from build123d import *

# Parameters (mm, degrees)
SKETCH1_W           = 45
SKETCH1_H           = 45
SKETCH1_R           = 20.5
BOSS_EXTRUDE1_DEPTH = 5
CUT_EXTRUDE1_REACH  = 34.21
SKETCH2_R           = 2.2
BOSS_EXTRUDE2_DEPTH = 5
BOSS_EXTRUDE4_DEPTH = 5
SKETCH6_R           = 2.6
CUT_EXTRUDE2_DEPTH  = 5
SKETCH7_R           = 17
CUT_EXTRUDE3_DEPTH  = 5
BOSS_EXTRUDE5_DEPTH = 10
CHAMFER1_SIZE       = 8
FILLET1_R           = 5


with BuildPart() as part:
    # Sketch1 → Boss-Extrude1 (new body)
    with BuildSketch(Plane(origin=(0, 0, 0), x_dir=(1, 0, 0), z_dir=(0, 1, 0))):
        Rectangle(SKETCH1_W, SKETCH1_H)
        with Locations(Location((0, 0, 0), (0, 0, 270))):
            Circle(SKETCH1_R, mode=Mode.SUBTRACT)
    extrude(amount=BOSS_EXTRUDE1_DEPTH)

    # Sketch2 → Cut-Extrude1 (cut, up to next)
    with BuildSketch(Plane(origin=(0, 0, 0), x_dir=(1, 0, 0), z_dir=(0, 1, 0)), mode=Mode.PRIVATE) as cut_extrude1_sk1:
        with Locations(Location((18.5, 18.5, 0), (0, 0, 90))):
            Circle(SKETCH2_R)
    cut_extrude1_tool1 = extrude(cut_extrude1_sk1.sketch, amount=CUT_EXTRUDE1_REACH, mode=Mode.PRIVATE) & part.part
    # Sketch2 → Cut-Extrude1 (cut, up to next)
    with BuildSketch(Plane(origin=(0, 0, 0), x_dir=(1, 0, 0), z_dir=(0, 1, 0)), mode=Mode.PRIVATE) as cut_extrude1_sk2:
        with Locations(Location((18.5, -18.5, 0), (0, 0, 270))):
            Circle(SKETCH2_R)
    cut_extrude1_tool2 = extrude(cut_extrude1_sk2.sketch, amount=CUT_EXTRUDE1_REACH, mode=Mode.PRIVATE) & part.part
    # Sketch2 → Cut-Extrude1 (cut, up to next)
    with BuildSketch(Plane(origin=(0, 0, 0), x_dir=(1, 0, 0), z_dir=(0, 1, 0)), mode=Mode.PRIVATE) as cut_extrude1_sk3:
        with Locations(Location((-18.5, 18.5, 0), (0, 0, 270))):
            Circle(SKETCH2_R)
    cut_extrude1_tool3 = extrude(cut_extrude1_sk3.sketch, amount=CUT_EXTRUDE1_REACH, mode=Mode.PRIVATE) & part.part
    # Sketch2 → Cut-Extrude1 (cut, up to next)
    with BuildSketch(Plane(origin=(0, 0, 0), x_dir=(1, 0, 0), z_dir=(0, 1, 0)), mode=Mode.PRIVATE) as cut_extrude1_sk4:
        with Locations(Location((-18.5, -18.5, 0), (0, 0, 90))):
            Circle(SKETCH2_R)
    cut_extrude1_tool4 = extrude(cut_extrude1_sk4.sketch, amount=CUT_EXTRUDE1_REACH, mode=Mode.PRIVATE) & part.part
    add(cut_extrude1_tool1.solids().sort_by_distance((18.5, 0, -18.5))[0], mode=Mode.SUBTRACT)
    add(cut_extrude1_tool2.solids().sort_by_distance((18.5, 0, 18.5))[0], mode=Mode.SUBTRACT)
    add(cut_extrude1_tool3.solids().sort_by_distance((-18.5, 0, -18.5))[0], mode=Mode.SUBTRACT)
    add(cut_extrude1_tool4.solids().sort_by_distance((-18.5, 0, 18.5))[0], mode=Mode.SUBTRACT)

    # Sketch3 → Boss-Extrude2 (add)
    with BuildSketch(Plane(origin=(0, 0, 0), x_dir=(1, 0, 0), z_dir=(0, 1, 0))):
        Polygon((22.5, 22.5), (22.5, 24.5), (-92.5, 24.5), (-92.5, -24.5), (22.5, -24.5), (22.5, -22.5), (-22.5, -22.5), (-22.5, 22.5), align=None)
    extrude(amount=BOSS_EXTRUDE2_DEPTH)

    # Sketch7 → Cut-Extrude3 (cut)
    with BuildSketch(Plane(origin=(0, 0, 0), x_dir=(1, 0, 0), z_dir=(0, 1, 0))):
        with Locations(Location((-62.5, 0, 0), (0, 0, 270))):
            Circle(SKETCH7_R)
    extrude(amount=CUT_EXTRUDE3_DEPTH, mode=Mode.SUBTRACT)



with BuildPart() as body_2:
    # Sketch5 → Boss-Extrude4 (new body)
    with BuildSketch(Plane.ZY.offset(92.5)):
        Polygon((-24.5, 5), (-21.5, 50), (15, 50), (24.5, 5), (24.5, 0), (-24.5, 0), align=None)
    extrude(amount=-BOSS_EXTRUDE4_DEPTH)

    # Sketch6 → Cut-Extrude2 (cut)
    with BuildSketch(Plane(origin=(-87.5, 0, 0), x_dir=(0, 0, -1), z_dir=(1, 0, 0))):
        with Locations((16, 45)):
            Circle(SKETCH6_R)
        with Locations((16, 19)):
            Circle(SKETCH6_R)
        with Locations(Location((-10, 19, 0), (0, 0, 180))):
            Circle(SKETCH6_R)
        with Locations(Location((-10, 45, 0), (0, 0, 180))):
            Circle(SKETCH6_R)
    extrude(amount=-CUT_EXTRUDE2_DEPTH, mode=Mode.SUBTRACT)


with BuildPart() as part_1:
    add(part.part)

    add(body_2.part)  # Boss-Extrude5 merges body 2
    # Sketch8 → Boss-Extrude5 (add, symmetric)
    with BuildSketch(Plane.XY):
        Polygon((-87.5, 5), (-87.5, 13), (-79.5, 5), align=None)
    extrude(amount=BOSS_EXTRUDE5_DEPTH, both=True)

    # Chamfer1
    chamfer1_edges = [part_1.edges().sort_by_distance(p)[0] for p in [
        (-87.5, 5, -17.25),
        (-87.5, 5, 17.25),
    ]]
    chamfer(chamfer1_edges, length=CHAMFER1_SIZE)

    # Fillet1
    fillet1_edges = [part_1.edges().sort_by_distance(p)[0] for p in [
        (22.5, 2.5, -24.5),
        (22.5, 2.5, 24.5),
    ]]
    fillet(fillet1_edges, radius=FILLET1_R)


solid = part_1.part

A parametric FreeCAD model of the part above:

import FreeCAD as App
import Part
import Sketcher

V = App.Vector
Q = App.Units.Quantity


def edges_at(feature, points):
    """Names of the edges that pass closest to the given points."""
    edges = feature.Shape.Edges
    near = lambda p: min(range(len(edges)), key=lambda i: edges[i].distToShape(Part.Vertex(*p))[0])
    return sorted({f"Edge{near(p) + 1}" for p in points})


def add_polygon(sketch, points):
    """Adds a closed chain of lines whose ends are joined by coincident constraints."""
    first, n = sketch.GeometryCount, len(points)
    for a, b in zip(points, points[1:] + points[:1]):
        sketch.addGeometry(Part.LineSegment(App.Vector(*a, 0), App.Vector(*b, 0)), False)
    for i in range(n):
        sketch.addConstraint(Sketcher.Constraint("Coincident", first + i, 2, first + (i + 1) % n, 1))

doc = App.newDocument("Part")
body = doc.addObject("PartDesign::Body", "Body")

# Sketch on XZ plane
sketch1 = body.newObject("Sketcher::SketchObject", "Sketch")
sketch1.AttachmentSupport = (doc.getObject("XZ_Plane"), [""])
sketch1.MapMode = "FlatFace"
add_polygon(sketch1, [(-22, -22), (-22, 22), (22, 22), (22, -22)])  # lines 0-3
sketch1.addGeometry(Part.Circle(V(0, 0, 0), V(0, 0, 1), 20), False)  # 4
sketch1.addConstraint([
    Sketcher.Constraint("Vertical", 0),
    Sketcher.Constraint("Horizontal", 1),
    Sketcher.Constraint("Vertical", 2),
    Sketcher.Constraint("Horizontal", 3),
    Sketcher.Constraint("Coincident", 4, 3, -1, 1),
    Sketcher.Constraint("Symmetric", 0, 2, 2, 2, -1, 1),
    Sketcher.Constraint("Equal", 3, 0),
    Sketcher.Constraint("Diameter", 4, Q("41 mm")),
    Sketcher.Constraint("DistanceX", 1, 1, 1, 2, Q("45 mm")),
])
pad1 = body.newObject("PartDesign::Pad", "Pad")
pad1.Profile = sketch1
pad1.Length = 5
pad1.Reversed = True

# Sketch on XZ plane
sketch2 = body.newObject("Sketcher::SketchObject", "Sketch001")
sketch2.AttachmentSupport = (doc.getObject("XZ_Plane"), [""])
sketch2.MapMode = "FlatFace"
sketch2.addGeometry(Part.Circle(V(18.5, -18.5, 0), V(0, 0, 1), 2.2), False)
sketch2.addConstraint([
    Sketcher.Constraint("Diameter", 0, Q("4.4 mm")),
    Sketcher.Constraint("DistanceX", -1, 1, 0, 3, Q("18.5 mm")),
    Sketcher.Constraint("DistanceY", 0, 3, -1, 1, Q("18.5 mm")),
])
pocket1 = body.newObject("PartDesign::Pocket", "Pocket")
pocket1.Profile = sketch2
pocket1.Type = "UpToFirst"

# Sketch on XZ plane
sketch3 = body.newObject("Sketcher::SketchObject", "Sketch002")
sketch3.AttachmentSupport = (doc.getObject("XZ_Plane"), [""])
sketch3.MapMode = "FlatFace"
sketch3.addGeometry(Part.Circle(V(18.5, 18.5, 0), V(0, 0, 1), 2.2), False)
sketch3.addConstraint([
    Sketcher.Constraint("Diameter", 0, Q("4.4 mm")),
    Sketcher.Constraint("DistanceX", -1, 1, 0, 3, Q("18.5 mm")),
    Sketcher.Constraint("DistanceY", -1, 1, 0, 3, Q("18.5 mm")),
])
pocket2 = body.newObject("PartDesign::Pocket", "Pocket001")
pocket2.Profile = sketch3
pocket2.Type = "UpToFirst"

# Sketch on XZ plane
sketch4 = body.newObject("Sketcher::SketchObject", "Sketch003")
sketch4.AttachmentSupport = (doc.getObject("XZ_Plane"), [""])
sketch4.MapMode = "FlatFace"
sketch4.addGeometry(Part.Circle(V(-18.5, -18.5, 0), V(0, 0, 1), 2.2), False)
sketch4.addConstraint([
    Sketcher.Constraint("Diameter", 0, Q("4.4 mm")),
    Sketcher.Constraint("DistanceX", 0, 3, -1, 1, Q("18.5 mm")),
    Sketcher.Constraint("DistanceY", 0, 3, -1, 1, Q("18.5 mm")),
])
pocket3 = body.newObject("PartDesign::Pocket", "Pocket002")
pocket3.Profile = sketch4
pocket3.Type = "UpToFirst"

# Sketch on XZ plane
sketch5 = body.newObject("Sketcher::SketchObject", "Sketch004")
sketch5.AttachmentSupport = (doc.getObject("XZ_Plane"), [""])
sketch5.MapMode = "FlatFace"
sketch5.addGeometry(Part.Circle(V(-18.5, 18.5, 0), V(0, 0, 1), 2.2), False)
sketch5.addConstraint([
    Sketcher.Constraint("Diameter", 0, Q("4.4 mm")),
    Sketcher.Constraint("DistanceX", 0, 3, -1, 1, Q("18.5 mm")),
    Sketcher.Constraint("DistanceY", -1, 1, 0, 3, Q("18.5 mm")),
])
pocket4 = body.newObject("PartDesign::Pocket", "Pocket003")
pocket4.Profile = sketch5
pocket4.Type = "UpToFirst"

# Sketch on XZ plane
sketch6 = body.newObject("Sketcher::SketchObject", "Sketch005")
sketch6.AttachmentSupport = (doc.getObject("XZ_Plane"), [""])
sketch6.MapMode = "FlatFace"
add_polygon(sketch6, [(22.5, -22.5), (22.5, -24.5), (-92.5, -24.5), (-92.5, 24.5), (22.5, 24.5), (22.5, 22.5), (-22.5, 22.5), (-22.5, -22.5)])  # lines 0-7
sketch6.addConstraint([
    Sketcher.Constraint("Vertical", 0),
    Sketcher.Constraint("Horizontal", 1),
    Sketcher.Constraint("Vertical", 2),
    Sketcher.Constraint("Horizontal", 3),
    Sketcher.Constraint("Vertical", 4),
    Sketcher.Constraint("Horizontal", 5),
    Sketcher.Constraint("Vertical", 6),
    Sketcher.Constraint("Horizontal", 7),
    Sketcher.Constraint("Symmetric", 4, 2, 6, 2, -1, 1),
    Sketcher.Constraint("Symmetric", 0, 2, 3, 2, -1),
    Sketcher.Constraint("Equal", 7, 6),
    Sketcher.Constraint("DistanceX", 1, 2, 1, 1, Q("115 mm")),
    Sketcher.Constraint("DistanceX", 5, 2, 5, 1, Q("45 mm")),
    Sketcher.Constraint("DistanceY", 0, 2, 0, 1, Q("2 mm")),
])
pad2 = body.newObject("PartDesign::Pad", "Pad001")
pad2.Profile = sketch6
pad2.Length = 5
pad2.Reversed = True

# Sketch on XZ plane
sketch7 = body.newObject("Sketcher::SketchObject", "Sketch006")
sketch7.AttachmentSupport = (doc.getObject("XZ_Plane"), [""])
sketch7.MapMode = "FlatFace"
sketch7.addGeometry(Part.Circle(V(-62, 0, 0), V(0, 0, 1), 17), False)
sketch7.addConstraint([
    Sketcher.Constraint("PointOnObject", 0, 3, -1),
    Sketcher.Constraint("Diameter", 0, Q("34 mm")),
    Sketcher.Constraint("DistanceX", 0, 3, -1, 1, Q("62.5 mm")),
])
pocket5 = body.newObject("PartDesign::Pocket", "Pocket004")
pocket5.Profile = sketch7
pocket5.Length = 5
body2 = doc.addObject("PartDesign::Body", "Body001")

# Sketch on YZ plane
sketch8 = body2.newObject("Sketcher::SketchObject", "Sketch007")
sketch8.AttachmentSupport = (doc.getObject("YZ_Plane001"), [""])
sketch8.MapMode = "FlatFace"
sketch8.AttachmentOffset = App.Placement(V(0, 0, -92.5), App.Rotation())
add_polygon(sketch8, [(50, -22), (5, -24), (0, -24), (0, 24), (5, 24), (50, 15)])  # lines 0-5
sketch8.addConstraint([
    Sketcher.Constraint("Horizontal", 1),
    Sketcher.Constraint("Vertical", 2),
    Sketcher.Constraint("Horizontal", 3),
    Sketcher.Constraint("Vertical", 5),
    Sketcher.Constraint("Symmetric", 1, 2, 2, 2, -1, 1),
    Sketcher.Constraint("Vertical", 0, 2, 3, 2),
    Sketcher.Constraint("DistanceX", 1, 2, 1, 1, Q("5 mm")),
    Sketcher.Constraint("DistanceY", 2, 1, 2, 2, Q("49 mm")),
    Sketcher.Constraint("DistanceY", 5, 2, 5, 1, Q("36.5 mm")),
    Sketcher.Constraint("DistanceX", -1, 1, 4, 2, Q("50 mm")),
    Sketcher.Constraint("DistanceY", -1, 1, 4, 2, Q("15 mm")),
])
pad3 = body2.newObject("PartDesign::Pad", "Pad002")
pad3.Profile = sketch8
pad3.Length = 5

# Sketch on YZ plane
sketch9 = body2.newObject("Sketcher::SketchObject", "Sketch008")
sketch9.AttachmentSupport = (doc.getObject("YZ_Plane001"), [""])
sketch9.MapMode = "FlatFace"
sketch9.AttachmentOffset = App.Placement(V(0, 0, -87.5), App.Rotation())
sketch9.addGeometry([
    Part.Circle(V(45, -16, 0), V(0, 0, 1), 2.6),
    Part.Circle(V(19, -16, 0), V(0, 0, 1), 2.6),
    Part.Circle(V(19, 10, 0), V(0, 0, 1), 2.6),
    Part.Circle(V(45, 10, 0), V(0, 0, 1), 2.6),
], False)
sketch9.addConstraint([
    Sketcher.Constraint("Equal", 0, 1),
    Sketcher.Constraint("Equal", 1, 2),
    Sketcher.Constraint("Equal", 2, 3),
    Sketcher.Constraint("Horizontal", 0, 3, 1, 3),
    Sketcher.Constraint("Horizontal", 2, 3, 3, 3),
    Sketcher.Constraint("Vertical", 1, 3, 2, 3),
    Sketcher.Constraint("Vertical", 0, 3, 3, 3),
    Sketcher.Constraint("Diameter", 0, Q("5.2 mm")),
    Sketcher.Constraint("DistanceX", -1, 1, 0, 3, Q("45 mm")),
    Sketcher.Constraint("DistanceY", 0, 3, -1, 1, Q("16 mm")),
    Sketcher.Constraint("DistanceX", -1, 1, 1, 3, Q("19 mm")),
    Sketcher.Constraint("DistanceY", -1, 1, 2, 3, Q("10 mm")),
])
pocket6 = body2.newObject("PartDesign::Pocket", "Pocket005")
pocket6.Profile = sketch9
pocket6.Length = 5
doc.recompute()

boolean = body.newObject("PartDesign::Boolean", "Boolean")
boolean.Type = "Fuse"
boolean.addObjects([body2])

# Sketch on XY plane
sketch10 = body.newObject("Sketcher::SketchObject", "Sketch009")
sketch10.AttachmentSupport = (doc.getObject("XY_Plane"), [""])
sketch10.MapMode = "FlatFace"
add_polygon(sketch10, [(-88, 13), (-88, 5), (-80, 5)])  # lines 0-2
sketch10.addConstraint([
    Sketcher.Constraint("Vertical", 0),
    Sketcher.Constraint("Horizontal", 1),
    Sketcher.Constraint("Equal", 1, 0),
    Sketcher.Constraint("DistanceX", 1, 1, 1, 2, Q("8 mm")),
    Sketcher.Constraint("DistanceY", -1, 1, 0, 2, Q("5 mm")),
    Sketcher.Constraint("DistanceX", 0, 2, -1, 1, Q("87.5 mm")),
])
pad4 = body.newObject("PartDesign::Pad", "Pad003")
pad4.Profile = sketch10
pad4.Length = 20
pad4.Midplane = True
doc.recompute()

chamfer = body.newObject("PartDesign::Chamfer", "Chamfer")
chamfer.Base = (pad4, edges_at(pad4, [(-87.5, 5, -17.25), (-87.5, 5, 17.25)]))
chamfer.Size = 8
doc.recompute()

fillet = body.newObject("PartDesign::Fillet", "Fillet")
fillet.Base = (chamfer, edges_at(chamfer, [(22.5, 2.5, -24.5), (22.5, 2.5, 24.5)]))
fillet.Radius = 5

doc.recompute()
